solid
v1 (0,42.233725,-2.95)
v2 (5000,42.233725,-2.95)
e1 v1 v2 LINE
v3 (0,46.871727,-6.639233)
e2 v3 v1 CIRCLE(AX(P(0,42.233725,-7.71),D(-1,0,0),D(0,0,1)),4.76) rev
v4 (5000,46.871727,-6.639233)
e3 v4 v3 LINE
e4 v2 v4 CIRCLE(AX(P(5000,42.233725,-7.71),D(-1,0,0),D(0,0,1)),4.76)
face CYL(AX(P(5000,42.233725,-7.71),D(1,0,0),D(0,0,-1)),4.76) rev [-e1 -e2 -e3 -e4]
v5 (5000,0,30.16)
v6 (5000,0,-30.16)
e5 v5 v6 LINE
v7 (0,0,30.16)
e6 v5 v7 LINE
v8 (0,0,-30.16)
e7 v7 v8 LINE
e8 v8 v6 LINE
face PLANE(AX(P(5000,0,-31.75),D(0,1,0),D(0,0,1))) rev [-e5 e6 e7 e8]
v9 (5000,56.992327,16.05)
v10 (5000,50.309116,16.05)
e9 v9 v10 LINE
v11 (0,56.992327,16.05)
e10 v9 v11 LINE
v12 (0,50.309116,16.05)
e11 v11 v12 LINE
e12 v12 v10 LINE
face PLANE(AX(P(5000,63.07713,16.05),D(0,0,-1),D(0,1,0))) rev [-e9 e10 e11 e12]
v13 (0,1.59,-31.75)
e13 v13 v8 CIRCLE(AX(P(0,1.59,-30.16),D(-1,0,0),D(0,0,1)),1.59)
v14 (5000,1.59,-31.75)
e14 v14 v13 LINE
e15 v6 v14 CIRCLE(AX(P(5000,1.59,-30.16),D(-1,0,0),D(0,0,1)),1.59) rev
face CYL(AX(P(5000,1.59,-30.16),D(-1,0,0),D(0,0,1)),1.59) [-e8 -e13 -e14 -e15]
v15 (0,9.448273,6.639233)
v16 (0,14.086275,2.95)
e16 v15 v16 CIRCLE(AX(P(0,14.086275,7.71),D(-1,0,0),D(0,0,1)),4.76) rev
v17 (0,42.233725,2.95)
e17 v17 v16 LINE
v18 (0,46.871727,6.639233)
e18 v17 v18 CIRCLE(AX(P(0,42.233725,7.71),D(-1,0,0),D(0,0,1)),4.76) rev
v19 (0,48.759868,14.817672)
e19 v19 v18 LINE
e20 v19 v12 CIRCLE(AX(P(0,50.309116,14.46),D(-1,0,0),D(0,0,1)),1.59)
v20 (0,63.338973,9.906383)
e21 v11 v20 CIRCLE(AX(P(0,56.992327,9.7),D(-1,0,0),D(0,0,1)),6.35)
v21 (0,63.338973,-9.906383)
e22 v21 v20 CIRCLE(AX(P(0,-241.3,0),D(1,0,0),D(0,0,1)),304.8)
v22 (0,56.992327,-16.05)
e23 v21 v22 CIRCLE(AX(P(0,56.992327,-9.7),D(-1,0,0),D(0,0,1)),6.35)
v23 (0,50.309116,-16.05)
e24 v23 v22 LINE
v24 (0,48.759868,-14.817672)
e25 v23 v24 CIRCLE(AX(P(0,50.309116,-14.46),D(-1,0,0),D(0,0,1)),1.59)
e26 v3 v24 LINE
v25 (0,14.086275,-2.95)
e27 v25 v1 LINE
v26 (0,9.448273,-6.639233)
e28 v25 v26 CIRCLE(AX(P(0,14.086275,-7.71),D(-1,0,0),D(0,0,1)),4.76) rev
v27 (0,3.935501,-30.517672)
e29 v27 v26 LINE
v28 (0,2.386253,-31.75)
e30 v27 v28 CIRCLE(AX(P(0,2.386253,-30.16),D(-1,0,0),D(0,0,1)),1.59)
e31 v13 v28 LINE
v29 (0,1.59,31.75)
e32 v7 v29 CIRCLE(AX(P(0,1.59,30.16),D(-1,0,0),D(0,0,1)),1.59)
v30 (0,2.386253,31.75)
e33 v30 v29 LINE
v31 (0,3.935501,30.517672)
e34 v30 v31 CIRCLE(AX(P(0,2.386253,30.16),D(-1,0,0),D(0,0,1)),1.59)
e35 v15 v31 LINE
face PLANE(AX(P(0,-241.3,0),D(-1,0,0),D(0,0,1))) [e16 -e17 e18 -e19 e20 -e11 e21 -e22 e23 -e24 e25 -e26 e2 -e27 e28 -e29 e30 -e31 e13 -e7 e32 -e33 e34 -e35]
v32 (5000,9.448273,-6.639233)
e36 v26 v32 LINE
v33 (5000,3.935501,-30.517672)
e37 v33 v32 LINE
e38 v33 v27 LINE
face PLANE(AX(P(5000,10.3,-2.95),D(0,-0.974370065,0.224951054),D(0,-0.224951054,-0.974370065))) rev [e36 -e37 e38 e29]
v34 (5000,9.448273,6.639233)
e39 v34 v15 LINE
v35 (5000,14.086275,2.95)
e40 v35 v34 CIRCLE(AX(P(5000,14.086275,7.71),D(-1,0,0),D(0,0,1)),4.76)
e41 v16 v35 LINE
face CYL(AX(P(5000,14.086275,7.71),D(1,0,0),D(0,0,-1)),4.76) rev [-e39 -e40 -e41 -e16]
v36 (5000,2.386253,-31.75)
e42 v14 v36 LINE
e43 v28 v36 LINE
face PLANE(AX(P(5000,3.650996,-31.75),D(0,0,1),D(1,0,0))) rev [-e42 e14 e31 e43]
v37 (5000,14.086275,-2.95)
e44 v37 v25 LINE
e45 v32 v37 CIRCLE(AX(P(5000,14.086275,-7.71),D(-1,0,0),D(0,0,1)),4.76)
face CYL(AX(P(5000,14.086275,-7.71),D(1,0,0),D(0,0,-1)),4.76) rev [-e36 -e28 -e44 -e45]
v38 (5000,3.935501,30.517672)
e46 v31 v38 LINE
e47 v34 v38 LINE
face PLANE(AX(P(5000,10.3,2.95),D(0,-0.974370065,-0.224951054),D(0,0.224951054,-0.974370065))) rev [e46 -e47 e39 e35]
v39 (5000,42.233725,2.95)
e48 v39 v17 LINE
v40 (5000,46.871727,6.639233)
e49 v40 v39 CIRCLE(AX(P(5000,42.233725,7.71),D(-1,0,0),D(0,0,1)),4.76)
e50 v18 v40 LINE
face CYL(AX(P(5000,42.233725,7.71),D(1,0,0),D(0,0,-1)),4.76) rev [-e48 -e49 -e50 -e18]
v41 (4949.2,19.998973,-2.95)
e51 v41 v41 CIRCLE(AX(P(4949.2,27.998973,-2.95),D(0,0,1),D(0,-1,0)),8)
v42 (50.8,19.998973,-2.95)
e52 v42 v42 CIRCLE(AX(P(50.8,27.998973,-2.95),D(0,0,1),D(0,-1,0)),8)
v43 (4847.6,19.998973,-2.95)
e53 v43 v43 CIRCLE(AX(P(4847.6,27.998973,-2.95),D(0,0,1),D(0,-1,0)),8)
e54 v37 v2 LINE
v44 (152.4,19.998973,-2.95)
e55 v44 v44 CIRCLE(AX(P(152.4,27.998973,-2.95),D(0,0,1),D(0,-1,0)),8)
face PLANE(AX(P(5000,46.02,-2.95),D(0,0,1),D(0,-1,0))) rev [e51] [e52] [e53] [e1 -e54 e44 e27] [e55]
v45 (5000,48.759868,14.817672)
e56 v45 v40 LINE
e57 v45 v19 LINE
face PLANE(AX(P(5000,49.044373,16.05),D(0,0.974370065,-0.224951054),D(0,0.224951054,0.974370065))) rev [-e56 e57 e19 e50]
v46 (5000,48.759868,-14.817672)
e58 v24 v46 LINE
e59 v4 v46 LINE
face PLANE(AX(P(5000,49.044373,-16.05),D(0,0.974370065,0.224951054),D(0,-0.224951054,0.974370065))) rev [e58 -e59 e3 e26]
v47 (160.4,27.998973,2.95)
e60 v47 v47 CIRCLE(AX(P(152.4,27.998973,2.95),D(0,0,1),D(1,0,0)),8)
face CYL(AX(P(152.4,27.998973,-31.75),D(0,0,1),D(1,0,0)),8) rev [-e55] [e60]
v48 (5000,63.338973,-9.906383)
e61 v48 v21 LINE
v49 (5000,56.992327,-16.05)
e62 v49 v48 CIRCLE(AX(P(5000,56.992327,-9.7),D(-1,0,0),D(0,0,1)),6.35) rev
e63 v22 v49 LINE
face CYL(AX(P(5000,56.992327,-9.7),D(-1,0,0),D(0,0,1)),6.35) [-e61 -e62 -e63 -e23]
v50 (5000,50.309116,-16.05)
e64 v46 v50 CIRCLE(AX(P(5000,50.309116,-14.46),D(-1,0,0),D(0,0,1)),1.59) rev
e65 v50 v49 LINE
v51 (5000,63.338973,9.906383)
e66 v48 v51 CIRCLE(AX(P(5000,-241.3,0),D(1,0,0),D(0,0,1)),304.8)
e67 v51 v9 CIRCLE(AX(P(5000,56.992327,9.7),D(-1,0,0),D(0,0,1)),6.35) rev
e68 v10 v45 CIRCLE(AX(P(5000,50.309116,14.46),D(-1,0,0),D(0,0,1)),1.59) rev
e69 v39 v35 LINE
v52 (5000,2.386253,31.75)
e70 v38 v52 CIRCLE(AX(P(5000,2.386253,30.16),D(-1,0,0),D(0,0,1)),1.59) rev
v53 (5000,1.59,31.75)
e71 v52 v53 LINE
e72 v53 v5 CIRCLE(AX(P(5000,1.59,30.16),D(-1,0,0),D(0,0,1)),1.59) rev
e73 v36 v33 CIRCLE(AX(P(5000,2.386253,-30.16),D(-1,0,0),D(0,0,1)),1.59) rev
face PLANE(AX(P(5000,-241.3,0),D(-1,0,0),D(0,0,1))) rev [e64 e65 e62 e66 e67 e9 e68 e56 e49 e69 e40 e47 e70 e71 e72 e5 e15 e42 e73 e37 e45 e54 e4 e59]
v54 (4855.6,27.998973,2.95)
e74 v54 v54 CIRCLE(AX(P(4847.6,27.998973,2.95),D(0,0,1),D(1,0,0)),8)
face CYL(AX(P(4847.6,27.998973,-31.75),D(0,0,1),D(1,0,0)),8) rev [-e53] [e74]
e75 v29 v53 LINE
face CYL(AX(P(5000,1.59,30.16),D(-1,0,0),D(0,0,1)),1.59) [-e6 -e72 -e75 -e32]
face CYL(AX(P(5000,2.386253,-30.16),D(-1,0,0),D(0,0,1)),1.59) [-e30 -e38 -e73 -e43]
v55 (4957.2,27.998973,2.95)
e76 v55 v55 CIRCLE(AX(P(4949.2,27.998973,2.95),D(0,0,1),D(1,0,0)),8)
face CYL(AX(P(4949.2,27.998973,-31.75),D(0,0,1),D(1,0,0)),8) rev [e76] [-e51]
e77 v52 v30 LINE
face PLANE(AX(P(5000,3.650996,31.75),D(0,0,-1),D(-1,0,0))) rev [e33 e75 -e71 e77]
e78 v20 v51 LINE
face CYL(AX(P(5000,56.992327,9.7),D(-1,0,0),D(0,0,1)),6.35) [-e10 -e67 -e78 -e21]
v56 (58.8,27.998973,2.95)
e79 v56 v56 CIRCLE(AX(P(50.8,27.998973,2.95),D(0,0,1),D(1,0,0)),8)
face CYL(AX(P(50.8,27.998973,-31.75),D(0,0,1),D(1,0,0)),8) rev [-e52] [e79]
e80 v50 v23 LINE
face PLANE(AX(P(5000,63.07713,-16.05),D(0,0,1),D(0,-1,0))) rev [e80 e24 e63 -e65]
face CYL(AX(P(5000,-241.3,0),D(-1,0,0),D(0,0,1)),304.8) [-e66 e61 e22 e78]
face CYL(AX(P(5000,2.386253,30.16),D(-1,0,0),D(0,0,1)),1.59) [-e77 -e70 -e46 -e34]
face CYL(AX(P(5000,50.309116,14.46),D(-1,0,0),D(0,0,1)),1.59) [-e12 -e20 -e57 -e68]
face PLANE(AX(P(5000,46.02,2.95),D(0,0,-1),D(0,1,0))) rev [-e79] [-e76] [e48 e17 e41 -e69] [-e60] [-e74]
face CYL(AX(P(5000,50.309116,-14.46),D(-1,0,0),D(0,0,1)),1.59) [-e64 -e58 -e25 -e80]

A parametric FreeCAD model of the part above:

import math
import FreeCAD as App
import Part
import Sketcher
Q = App.Units.Quantity


def edges_at(feature, points):
    """Names of the edges that pass closest to the given points."""
    edges = feature.Shape.Edges
    near = lambda p: min(range(len(edges)), key=lambda i: edges[i].distToShape(Part.Vertex(*p))[0])
    return sorted({f"Edge{near(p) + 1}" for p in points})

doc = App.newDocument("Part")
params = doc.addObject("Spreadsheet::Sheet", "Params")
for row, (alias, value) in enumerate([
    ("sketch1_radius", "12 in"),
    ("sketch1_height", "2.5 in"),
    ("pad1_length", "5000 mm"),
    ("fillet_radius", "0.25 in"),
    ("fillet2_radius", "4.76 mm"),
    ("fillet3_radius", "1.59 mm"),
], start=1):
    params.set(f"A{row}", alias)
    params.set(f"B{row}", "=" + value)
    params.setAlias(f"B{row}", alias)

body = doc.addObject("PartDesign::Body", "Body")

sketch1 = body.newObject("Sketcher::SketchObject", "Sketch")
sketch1.AttachmentSupport = (doc.getObject("YZ_Plane"), [""])
sketch1.MapMode = "FlatFace"
sketch1.addGeometry(Part.LineSegment(App.Vector(49, -16.1, 0), App.Vector(63.1, -16.1, 0)), False)
sketch1.addGeometry(Part.ArcOfCircle(Part.Circle(App.Vector(-241.3, 0, 0), App.Vector(0, 0, 1), 304.8), math.radians(-3.02), math.radians(3.02)), False)
sketch1.addGeometry(Part.LineSegment(App.Vector(63.1, 16.1, 0), App.Vector(49, 16.1, 0)), False)
sketch1.addGeometry(Part.LineSegment(App.Vector(49, 16.1, 0), App.Vector(46, 3, 0)), False)
sketch1.addGeometry(Part.LineSegment(App.Vector(46, 3, 0), App.Vector(10.3, 3, 0)), False)
sketch1.addGeometry(Part.LineSegment(App.Vector(10.3, 3, 0), App.Vector(3.7, 31.8, 0)), False)
sketch1.addGeometry(Part.LineSegment(App.Vector(3.7, 31.8, 0), App.Vector(0, 31.8, 0)), False)
sketch1.addGeometry(Part.LineSegment(App.Vector(0, 31.8, 0), App.Vector(0, -31.8, 0)), False)
sketch1.addGeometry(Part.LineSegment(App.Vector(0, -31.8, 0), App.Vector(3.7, -31.8, 0)), False)
sketch1.addGeometry(Part.LineSegment(App.Vector(3.7, -31.8, 0), App.Vector(10.3, -3, 0)), False)
sketch1.addGeometry(Part.LineSegment(App.Vector(10.3, -3, 0), App.Vector(46, -3, 0)), False)
sketch1.addGeometry(Part.LineSegment(App.Vector(46, -3, 0), App.Vector(49, -16.1, 0)), False)
sketch1.addConstraint(Sketcher.Constraint("Coincident", 0, 2, 1, 1))
sketch1.addConstraint(Sketcher.Constraint("Coincident", 1, 2, 2, 1))
sketch1.addConstraint(Sketcher.Constraint("Coincident", 2, 2, 3, 1))
sketch1.addConstraint(Sketcher.Constraint("Coincident", 3, 2, 4, 1))
sketch1.addConstraint(Sketcher.Constraint("Coincident", 4, 2, 5, 1))
sketch1.addConstraint(Sketcher.Constraint("Coincident", 5, 2, 6, 1))
sketch1.addConstraint(Sketcher.Constraint("Coincident", 6, 2, 7, 1))
sketch1.addConstraint(Sketcher.Constraint("Coincident", 7, 2, 8, 1))
sketch1.addConstraint(Sketcher.Constraint("Coincident", 8, 2, 9, 1))
sketch1.addConstraint(Sketcher.Constraint("Coincident", 9, 2, 10, 1))
sketch1.addConstraint(Sketcher.Constraint("Coincident", 10, 2, 11, 1))
sketch1.addConstraint(Sketcher.Constraint("Coincident", 11, 2, 0, 1))
sketch1.addConstraint(Sketcher.Constraint("Horizontal", 0))
sketch1.addConstraint(Sketcher.Constraint("Horizontal", 2))
sketch1.addConstraint(Sketcher.Constraint("Horizontal", 4))
sketch1.addConstraint(Sketcher.Constraint("Horizontal", 6))
sketch1.addConstraint(Sketcher.Constraint("Vertical", 7))
sketch1.addConstraint(Sketcher.Constraint("Horizontal", 8))
sketch1.addConstraint(Sketcher.Constraint("Horizontal", 10))
sketch1.addConstraint(Sketcher.Constraint("Symmetric", 6, 2, 7, 2, -1, 1))
sketch1.addConstraint(Sketcher.Constraint("Symmetric", 0, 2, 1, 2, -1))
sketch1.addConstraint(Sketcher.Constraint("Symmetric", 4, 2, 9, 2, -1))
sketch1.addConstraint(Sketcher.Constraint("Parallel", 3, 9))
sketch1.addConstraint(Sketcher.Constraint("Parallel", 5, 11))
sketch1.addConstraint(Sketcher.Constraint("Vertical", 5, 2, 8, 2))
sketch1.addConstraint(Sketcher.Constraint("Vertical", 3, 2, 10, 2))
sketch1.addConstraint(Sketcher.Constraint("Radius", 1, Q("12 in")))
sketch1.addConstraint(Sketcher.Constraint("DistanceY", 7, 2, 7, 1, Q("2.5 in")))
sketch1.addConstraint(Sketcher.Constraint("Angle", 3, Q("-103 deg")))
sketch1.addConstraint(Sketcher.Constraint("DistanceX", 1, 3, -1, 1, Q("9.5 in")))
sketch1.addConstraint(Sketcher.Constraint("DistanceX", 4, 2, 4, 1, 35.72))
sketch1.addConstraint(Sketcher.Constraint("DistanceY", 0, 2, -1, 1, 16.05))
sketch1.addConstraint(Sketcher.Constraint("DistanceX", -1, 1, 3, 2, 46.02))
sketch1.addConstraint(Sketcher.Constraint("DistanceY", -1, 1, 3, 2, 2.95))
sketch1.setExpression("Constraints[26]", "Params.sketch1_radius")
sketch1.setExpression("Constraints[27]", "Params.sketch1_height")
pad1 = body.newObject("PartDesign::Pad", "Pad")
pad1.Profile = sketch1
pad1.setExpression("Length", "Params.pad1_length")
doc.recompute()

fillet = body.newObject("PartDesign::Fillet", "Fillet")
fillet.Base = (pad1, edges_at(pad1, [(2500, 63.077, -16.05), (2500, 63.077, 16.05)]))
fillet.setExpression("Radius", "Params.fillet_radius")
doc.recompute()

fillet2 = body.newObject("PartDesign::Fillet", "Fillet001")
fillet2.Base = (fillet, edges_at(fillet, [
    (2500, 46.02, -2.95),
    (2500, 10.3, -2.95),
    (2500, 10.3, 2.95),
    (2500, 46.02, 2.95),
]))
fillet2.setExpression("Radius", "Params.fillet2_radius")
doc.recompute()

fillet3 = body.newObject("PartDesign::Fillet", "Fillet002")
fillet3.Base = (fillet2, edges_at(fillet2, [
    (2500, 49.044, -16.05),
    (2500, 3.651, -31.75),
    (2500, 0, -31.75),
    (2500, 0, 31.75),
    (2500, 3.651, 31.75),
    (2500, 49.044, 16.05),
]))
fillet3.setExpression("Radius", "Params.fillet3_radius")

sketch2 = body.newObject("Sketcher::SketchObject", "Sketch001")
sketch2.AttachmentSupport = (doc.getObject("XY_Plane"), [""])
sketch2.MapMode = "FlatFace"
sketch2.AttachmentOffset = App.Placement(App.Vector(0, 0, 2.95), App.Rotation())
sketch2.addGeometry(Part.Circle(App.Vector(51, 28, 0), App.Vector(0, 0, 1), 8), False)
sketch2.addGeometry(Part.Circle(App.Vector(152, 28, 0), App.Vector(0, 0, 1), 8), False)
sketch2.addGeometry(Part.Circle(App.Vector(4848, 28, 0), App.Vector(0, 0, 1), 8), False)
sketch2.addGeometry(Part.Circle(App.Vector(4949, 28, 0), App.Vector(0, 0, 1), 8), False)
sketch2.addConstraint(Sketcher.Constraint("Equal", 0, 1))
sketch2.addConstraint(Sketcher.Constraint("Equal", 1, 2))
sketch2.addConstraint(Sketcher.Constraint("Equal", 2, 3))
sketch2.addConstraint(Sketcher.Constraint("Horizontal", 0, 3, 1, 3))
sketch2.addConstraint(Sketcher.Constraint("Horizontal", 1, 3, 2, 3))
sketch2.addConstraint(Sketcher.Constraint("Horizontal", 2, 3, 3, 3))
sketch2.addConstraint(Sketcher.Constraint("DistanceX", -1, 1, 0, 3, Q("2 in")))
sketch2.addConstraint(Sketcher.Constraint("DistanceX", -1, 1, 1, 3, Q("6 in")))
sketch2.addConstraint(Sketcher.Constraint("DistanceX", 2, 3, 3, 3, Q("4 in")))
sketch2.addConstraint(Sketcher.Constraint("Diameter", 0, 16.0))
sketch2.addConstraint(Sketcher.Constraint("DistanceX", -1, 1, 2, 3, 4847.6))
sketch2.addConstraint(Sketcher.Constraint("DistanceY", -1, 1, 0, 3, 27.998973))
pocket1 = body.newObject("PartDesign::Pocket", "Pocket")
pocket1.Profile = sketch2
pocket1.Type = "ThroughAll"

doc.recompute()
